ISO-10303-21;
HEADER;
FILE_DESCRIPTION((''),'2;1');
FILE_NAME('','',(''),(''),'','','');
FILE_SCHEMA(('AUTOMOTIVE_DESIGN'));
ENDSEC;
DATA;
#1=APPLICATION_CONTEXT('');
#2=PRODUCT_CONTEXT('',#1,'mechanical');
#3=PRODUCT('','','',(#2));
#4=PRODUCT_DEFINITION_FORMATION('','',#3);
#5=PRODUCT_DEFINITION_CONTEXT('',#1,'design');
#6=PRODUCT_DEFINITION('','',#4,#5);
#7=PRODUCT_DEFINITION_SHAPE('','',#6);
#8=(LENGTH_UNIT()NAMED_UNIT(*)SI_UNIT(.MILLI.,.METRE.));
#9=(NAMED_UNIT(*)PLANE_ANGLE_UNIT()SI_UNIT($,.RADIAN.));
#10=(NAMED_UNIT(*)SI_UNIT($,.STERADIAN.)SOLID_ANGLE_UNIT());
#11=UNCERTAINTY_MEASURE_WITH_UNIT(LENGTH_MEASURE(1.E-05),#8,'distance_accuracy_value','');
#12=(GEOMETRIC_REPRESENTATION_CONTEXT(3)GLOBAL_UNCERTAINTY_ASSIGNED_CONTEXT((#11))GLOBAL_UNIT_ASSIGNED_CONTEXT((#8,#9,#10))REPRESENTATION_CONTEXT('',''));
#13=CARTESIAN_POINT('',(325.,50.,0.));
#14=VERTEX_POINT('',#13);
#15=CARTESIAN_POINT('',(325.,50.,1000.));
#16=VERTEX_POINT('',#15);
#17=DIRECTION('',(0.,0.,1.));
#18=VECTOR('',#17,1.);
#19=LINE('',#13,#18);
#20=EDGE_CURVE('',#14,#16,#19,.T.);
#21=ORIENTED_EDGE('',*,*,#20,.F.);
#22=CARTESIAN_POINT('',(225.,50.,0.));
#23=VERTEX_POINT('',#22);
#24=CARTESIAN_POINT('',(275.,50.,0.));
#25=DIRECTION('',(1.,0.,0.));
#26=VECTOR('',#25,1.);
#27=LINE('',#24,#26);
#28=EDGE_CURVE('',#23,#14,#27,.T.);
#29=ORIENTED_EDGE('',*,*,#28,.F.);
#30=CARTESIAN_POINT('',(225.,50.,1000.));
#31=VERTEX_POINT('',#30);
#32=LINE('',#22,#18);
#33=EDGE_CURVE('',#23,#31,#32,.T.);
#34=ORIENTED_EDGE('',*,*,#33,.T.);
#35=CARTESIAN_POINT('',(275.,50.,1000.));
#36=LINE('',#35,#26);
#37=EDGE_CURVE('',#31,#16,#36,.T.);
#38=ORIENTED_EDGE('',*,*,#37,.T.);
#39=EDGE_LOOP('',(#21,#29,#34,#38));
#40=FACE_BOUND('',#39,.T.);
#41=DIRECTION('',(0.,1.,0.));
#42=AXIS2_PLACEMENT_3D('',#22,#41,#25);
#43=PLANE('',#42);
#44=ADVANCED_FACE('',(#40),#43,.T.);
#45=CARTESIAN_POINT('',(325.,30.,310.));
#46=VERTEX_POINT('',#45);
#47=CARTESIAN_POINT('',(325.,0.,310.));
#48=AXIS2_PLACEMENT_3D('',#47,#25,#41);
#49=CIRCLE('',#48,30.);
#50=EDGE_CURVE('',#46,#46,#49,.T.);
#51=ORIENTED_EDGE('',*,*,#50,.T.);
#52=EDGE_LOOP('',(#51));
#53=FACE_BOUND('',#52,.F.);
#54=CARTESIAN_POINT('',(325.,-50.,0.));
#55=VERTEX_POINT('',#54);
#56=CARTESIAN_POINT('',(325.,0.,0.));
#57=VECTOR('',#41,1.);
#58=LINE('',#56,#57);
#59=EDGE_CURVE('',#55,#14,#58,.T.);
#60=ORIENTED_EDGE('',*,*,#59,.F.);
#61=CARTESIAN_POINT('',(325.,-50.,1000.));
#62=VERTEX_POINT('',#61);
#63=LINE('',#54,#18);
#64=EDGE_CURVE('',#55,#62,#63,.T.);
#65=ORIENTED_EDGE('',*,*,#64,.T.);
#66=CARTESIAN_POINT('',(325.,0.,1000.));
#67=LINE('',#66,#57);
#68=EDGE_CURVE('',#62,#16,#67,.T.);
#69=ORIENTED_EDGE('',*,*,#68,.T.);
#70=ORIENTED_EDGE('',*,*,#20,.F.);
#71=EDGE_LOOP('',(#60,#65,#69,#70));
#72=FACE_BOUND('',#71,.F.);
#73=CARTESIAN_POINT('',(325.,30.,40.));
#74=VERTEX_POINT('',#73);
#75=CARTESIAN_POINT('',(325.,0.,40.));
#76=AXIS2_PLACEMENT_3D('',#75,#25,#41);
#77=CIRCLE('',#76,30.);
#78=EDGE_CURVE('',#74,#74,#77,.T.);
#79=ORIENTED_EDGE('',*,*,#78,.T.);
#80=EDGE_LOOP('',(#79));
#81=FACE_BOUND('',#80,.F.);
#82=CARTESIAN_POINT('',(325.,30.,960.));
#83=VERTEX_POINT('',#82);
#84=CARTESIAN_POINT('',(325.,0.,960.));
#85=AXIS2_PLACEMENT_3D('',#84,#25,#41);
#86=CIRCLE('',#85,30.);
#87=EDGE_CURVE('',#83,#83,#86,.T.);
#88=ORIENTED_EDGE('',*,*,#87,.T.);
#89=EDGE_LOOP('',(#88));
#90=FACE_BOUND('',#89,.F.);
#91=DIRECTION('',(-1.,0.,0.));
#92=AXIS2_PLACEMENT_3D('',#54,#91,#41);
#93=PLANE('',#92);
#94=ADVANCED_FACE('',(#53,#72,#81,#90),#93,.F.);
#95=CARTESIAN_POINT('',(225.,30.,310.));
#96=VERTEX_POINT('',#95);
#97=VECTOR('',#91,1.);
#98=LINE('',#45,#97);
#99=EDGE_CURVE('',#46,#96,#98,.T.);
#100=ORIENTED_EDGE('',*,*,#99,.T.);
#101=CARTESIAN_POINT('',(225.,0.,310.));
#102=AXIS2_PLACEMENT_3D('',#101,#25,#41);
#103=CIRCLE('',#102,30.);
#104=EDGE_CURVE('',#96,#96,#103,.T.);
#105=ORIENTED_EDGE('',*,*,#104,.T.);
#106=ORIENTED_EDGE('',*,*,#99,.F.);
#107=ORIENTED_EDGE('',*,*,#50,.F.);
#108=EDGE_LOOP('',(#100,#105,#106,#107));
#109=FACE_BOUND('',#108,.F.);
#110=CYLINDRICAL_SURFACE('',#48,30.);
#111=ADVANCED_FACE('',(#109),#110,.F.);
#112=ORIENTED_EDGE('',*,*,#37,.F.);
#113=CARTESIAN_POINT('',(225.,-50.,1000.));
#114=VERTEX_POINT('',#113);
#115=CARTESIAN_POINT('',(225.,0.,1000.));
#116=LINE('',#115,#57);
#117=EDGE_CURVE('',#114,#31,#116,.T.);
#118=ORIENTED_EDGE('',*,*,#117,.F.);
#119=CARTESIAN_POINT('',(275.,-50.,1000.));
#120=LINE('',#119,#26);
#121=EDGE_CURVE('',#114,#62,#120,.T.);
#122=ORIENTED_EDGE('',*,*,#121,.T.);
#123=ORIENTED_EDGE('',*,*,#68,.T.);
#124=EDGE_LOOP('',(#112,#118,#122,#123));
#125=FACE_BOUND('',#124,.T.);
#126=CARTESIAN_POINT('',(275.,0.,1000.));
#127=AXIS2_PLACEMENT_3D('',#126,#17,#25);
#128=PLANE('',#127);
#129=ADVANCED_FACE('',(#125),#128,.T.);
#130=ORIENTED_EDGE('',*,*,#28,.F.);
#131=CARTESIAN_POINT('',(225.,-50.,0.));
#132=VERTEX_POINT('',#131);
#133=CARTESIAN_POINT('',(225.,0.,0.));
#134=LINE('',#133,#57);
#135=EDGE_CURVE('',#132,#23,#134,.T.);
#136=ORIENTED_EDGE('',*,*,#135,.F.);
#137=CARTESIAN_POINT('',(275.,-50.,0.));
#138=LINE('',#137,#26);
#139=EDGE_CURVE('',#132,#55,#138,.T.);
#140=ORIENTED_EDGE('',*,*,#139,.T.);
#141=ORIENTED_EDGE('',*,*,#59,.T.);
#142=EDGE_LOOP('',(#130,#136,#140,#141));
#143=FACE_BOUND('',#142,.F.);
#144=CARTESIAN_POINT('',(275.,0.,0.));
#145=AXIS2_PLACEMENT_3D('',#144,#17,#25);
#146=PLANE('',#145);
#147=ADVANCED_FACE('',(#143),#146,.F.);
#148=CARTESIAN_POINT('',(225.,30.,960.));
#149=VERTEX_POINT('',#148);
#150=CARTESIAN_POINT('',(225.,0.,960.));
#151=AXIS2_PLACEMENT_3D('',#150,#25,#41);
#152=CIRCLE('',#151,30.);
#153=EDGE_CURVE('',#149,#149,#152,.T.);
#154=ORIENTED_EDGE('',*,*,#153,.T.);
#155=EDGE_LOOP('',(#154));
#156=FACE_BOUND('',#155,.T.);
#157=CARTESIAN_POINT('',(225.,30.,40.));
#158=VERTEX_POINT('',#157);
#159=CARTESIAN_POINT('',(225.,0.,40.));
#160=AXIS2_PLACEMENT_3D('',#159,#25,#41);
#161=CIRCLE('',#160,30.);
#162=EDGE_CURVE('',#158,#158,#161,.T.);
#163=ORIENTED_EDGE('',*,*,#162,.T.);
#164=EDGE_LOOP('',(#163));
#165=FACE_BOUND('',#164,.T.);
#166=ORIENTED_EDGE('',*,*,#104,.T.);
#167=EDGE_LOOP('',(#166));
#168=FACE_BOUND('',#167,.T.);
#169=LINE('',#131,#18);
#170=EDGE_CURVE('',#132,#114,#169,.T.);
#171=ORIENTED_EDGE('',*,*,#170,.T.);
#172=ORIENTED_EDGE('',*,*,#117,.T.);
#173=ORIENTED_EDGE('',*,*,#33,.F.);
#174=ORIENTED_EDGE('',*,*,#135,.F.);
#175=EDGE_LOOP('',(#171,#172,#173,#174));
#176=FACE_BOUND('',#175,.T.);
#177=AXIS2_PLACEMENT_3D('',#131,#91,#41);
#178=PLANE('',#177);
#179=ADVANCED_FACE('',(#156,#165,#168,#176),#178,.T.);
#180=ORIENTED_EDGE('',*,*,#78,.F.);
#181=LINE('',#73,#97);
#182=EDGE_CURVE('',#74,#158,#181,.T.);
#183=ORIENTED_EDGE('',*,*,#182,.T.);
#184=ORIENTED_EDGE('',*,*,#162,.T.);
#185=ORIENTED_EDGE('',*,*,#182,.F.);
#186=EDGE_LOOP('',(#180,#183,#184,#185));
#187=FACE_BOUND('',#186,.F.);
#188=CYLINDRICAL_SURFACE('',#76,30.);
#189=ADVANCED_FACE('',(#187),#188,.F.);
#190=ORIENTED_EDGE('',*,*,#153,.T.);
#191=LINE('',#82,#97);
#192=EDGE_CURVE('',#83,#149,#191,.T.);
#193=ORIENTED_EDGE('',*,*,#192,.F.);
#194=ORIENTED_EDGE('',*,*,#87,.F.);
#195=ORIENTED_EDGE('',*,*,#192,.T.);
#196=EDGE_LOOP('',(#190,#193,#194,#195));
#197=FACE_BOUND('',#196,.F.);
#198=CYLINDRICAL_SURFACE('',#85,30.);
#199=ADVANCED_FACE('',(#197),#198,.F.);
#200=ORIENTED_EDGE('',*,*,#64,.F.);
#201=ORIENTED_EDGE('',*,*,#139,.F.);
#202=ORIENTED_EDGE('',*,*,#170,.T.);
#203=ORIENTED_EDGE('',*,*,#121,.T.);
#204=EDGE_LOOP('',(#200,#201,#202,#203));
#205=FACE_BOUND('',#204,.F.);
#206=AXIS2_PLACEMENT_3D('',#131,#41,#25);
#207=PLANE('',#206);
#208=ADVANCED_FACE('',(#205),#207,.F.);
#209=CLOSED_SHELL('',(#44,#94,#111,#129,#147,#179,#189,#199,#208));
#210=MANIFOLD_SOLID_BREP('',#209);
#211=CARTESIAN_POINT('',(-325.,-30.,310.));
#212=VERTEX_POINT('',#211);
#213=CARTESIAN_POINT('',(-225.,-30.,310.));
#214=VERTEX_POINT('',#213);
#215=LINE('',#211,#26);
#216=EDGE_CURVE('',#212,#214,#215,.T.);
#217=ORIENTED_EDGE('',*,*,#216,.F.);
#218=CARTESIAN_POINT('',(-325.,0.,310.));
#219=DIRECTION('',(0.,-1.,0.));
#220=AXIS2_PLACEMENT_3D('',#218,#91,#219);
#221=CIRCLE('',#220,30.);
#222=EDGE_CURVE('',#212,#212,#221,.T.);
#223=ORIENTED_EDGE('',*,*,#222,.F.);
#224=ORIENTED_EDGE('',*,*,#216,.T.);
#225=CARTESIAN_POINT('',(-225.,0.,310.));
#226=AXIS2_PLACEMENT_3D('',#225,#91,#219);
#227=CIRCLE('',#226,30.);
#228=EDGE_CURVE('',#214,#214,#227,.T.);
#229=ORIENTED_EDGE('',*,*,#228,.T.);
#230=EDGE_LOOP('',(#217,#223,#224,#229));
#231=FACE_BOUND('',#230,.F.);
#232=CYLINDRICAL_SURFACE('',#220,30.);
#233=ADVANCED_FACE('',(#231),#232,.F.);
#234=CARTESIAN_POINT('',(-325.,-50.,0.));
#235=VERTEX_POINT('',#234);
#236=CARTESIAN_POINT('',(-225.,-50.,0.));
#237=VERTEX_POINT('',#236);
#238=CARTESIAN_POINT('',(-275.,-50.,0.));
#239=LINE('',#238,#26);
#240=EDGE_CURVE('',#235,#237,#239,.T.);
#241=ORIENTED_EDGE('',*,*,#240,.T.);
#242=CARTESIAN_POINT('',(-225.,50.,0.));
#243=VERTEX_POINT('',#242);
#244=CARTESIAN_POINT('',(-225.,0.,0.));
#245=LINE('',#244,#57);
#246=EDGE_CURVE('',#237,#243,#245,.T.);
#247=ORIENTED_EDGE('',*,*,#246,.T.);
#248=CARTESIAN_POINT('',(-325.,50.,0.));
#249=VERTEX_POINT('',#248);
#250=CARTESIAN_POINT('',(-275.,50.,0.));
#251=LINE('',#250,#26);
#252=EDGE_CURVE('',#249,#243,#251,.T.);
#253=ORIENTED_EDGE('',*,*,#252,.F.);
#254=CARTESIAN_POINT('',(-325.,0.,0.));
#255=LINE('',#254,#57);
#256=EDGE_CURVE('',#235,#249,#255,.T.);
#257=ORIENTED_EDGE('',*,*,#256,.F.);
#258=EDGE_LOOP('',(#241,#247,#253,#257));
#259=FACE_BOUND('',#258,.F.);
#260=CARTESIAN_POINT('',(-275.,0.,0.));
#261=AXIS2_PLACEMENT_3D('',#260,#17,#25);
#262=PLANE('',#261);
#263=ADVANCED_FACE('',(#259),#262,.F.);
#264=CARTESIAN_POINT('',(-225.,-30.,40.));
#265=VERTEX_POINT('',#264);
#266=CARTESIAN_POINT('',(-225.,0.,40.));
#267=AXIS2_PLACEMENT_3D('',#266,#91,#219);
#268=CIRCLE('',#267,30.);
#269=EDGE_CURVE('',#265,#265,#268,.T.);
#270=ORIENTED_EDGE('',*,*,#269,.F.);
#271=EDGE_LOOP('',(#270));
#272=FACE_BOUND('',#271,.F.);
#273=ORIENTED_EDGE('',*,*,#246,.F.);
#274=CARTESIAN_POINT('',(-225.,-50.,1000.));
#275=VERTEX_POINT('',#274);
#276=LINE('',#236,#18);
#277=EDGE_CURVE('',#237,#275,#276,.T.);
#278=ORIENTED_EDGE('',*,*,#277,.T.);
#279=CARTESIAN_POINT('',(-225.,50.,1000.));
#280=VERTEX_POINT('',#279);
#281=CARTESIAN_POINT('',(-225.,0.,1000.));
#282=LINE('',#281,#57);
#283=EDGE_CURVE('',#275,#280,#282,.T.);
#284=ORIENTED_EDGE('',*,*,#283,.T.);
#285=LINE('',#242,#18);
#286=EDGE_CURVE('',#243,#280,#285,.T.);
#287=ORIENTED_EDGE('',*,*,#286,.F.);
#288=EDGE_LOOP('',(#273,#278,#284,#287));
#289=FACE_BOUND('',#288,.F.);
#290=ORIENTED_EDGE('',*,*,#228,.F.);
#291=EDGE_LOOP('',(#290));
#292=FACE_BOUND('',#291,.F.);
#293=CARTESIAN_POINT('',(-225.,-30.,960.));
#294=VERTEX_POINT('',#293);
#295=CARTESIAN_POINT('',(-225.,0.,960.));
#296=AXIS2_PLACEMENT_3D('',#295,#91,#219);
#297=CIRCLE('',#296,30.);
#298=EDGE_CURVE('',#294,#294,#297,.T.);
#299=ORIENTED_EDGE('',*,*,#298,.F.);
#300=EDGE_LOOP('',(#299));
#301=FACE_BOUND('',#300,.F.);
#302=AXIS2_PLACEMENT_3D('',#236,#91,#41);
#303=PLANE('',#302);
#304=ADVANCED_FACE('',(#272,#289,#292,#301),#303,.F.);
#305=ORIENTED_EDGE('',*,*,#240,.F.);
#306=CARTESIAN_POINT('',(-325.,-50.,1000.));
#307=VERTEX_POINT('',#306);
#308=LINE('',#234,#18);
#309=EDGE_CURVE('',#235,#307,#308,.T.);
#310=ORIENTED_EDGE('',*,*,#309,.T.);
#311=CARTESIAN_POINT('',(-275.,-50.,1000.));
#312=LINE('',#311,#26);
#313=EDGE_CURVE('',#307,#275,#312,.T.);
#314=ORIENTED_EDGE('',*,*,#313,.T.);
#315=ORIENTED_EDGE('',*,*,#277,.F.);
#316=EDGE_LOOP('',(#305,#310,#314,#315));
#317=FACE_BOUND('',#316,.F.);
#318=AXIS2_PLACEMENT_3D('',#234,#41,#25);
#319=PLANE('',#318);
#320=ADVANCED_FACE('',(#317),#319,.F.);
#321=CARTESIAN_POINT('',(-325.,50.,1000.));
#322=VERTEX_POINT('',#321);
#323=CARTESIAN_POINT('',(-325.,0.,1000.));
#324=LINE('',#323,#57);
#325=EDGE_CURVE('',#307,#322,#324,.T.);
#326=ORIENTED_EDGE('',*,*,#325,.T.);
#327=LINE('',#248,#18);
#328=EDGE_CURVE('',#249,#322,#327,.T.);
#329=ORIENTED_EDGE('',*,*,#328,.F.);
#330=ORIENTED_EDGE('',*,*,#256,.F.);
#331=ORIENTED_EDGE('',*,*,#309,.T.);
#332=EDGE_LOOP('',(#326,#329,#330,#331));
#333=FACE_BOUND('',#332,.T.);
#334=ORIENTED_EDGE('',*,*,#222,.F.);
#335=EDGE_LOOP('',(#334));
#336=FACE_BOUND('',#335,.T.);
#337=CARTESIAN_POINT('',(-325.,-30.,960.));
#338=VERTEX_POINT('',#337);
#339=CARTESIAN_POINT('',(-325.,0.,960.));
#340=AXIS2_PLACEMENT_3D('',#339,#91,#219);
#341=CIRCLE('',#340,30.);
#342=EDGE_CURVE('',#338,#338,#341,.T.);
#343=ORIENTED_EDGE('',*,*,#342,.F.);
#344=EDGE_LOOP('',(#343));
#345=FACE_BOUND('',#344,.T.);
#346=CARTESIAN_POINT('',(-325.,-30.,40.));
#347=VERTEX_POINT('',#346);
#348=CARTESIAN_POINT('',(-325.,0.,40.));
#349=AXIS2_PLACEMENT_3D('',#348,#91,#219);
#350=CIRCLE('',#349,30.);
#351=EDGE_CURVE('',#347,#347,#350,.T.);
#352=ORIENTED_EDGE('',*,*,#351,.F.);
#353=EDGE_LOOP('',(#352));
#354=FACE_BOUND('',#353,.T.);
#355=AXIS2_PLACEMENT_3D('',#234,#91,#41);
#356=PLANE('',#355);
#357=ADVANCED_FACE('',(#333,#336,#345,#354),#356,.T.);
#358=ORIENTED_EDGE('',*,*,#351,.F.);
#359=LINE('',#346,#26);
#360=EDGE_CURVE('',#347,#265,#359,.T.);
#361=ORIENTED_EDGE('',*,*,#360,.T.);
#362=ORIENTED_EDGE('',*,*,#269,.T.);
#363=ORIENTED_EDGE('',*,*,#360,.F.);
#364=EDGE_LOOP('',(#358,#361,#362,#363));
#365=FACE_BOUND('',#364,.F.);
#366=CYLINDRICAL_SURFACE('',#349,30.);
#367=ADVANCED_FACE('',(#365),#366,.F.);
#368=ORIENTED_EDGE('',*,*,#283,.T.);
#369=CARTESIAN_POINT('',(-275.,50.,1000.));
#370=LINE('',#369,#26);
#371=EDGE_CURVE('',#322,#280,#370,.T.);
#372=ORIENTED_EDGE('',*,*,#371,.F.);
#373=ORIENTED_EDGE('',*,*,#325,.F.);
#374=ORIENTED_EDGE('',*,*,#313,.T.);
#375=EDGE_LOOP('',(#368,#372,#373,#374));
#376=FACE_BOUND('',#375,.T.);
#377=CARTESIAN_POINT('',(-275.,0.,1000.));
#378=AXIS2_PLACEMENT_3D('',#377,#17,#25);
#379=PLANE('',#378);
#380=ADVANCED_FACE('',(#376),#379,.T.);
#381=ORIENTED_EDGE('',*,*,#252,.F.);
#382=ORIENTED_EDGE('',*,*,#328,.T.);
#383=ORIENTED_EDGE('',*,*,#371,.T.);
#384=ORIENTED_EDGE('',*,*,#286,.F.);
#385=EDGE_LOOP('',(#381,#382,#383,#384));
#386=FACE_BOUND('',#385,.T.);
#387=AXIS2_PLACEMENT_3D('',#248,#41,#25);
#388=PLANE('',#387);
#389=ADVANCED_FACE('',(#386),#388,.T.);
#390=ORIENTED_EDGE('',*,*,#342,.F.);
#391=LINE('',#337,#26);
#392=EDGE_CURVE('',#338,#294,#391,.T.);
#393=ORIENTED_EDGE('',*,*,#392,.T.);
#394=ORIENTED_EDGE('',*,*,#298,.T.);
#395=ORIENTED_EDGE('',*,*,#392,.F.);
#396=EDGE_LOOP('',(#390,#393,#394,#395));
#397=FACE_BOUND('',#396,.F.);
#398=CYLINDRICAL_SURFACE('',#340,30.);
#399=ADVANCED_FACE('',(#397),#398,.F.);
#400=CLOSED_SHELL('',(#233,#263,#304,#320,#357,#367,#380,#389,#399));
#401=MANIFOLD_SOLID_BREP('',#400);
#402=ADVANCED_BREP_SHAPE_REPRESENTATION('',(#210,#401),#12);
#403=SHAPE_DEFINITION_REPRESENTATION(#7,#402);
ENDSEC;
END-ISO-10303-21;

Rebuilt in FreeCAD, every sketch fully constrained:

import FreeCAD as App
import Part
import Sketcher

doc = App.newDocument("Part")
body = doc.addObject("PartDesign::Body", "Body")
body.AllowCompound = True

sketch1 = doc.addObject("Sketcher::SketchObject", "Sketch")
body.addObject(sketch1)
sketch1.AttachmentSupport = (doc.XY_Plane, [""])
sketch1.MapMode = "FlatFace"
sketch1.addGeometry([
    Part.LineSegment(App.Vector(-325, 50, 0), App.Vector(-325, -50, 0)),
    Part.LineSegment(App.Vector(-325, -50, 0), App.Vector(-225, -50, 0)),
    Part.LineSegment(App.Vector(-225, -50, 0), App.Vector(-225, 50, 0)),
    Part.LineSegment(App.Vector(-225, 50, 0), App.Vector(-325, 50, 0)),
    Part.LineSegment(App.Vector(225, 50, 0), App.Vector(225, -50, 0)),
    Part.LineSegment(App.Vector(225, -50, 0), App.Vector(325, -50, 0)),
    Part.LineSegment(App.Vector(325, -50, 0), App.Vector(325, 50, 0)),
    Part.LineSegment(App.Vector(325, 50, 0), App.Vector(225, 50, 0)),
], False)
sketch1.addConstraint([
    Sketcher.Constraint("Coincident", 0, 2, 1, 1),
    Sketcher.Constraint("Coincident", 1, 2, 2, 1),
    Sketcher.Constraint("Coincident", 2, 2, 3, 1),
    Sketcher.Constraint("Coincident", 3, 2, 0, 1),
    Sketcher.Constraint("Coincident", 4, 2, 5, 1),
    Sketcher.Constraint("Coincident", 5, 2, 6, 1),
    Sketcher.Constraint("Coincident", 6, 2, 7, 1),
    Sketcher.Constraint("Coincident", 7, 2, 4, 1),
    Sketcher.Constraint("Vertical", 0),
    Sketcher.Constraint("Horizontal", 1),
    Sketcher.Constraint("Vertical", 2),
    Sketcher.Constraint("Horizontal", 3),
    Sketcher.Constraint("Vertical", 4),
    Sketcher.Constraint("Horizontal", 5),
    Sketcher.Constraint("Vertical", 6),
    Sketcher.Constraint("Horizontal", 7),
    Sketcher.Constraint("Symmetric", 2, 2, 4, 2, -1, 1),
    Sketcher.Constraint("Symmetric", 0, 2, 6, 2, -1, 1),
    Sketcher.Constraint("Horizontal", 1, 2, 4, 2),
    Sketcher.Constraint("Equal", 7, 0),
    Sketcher.Constraint("DistanceX", 1, 1, 1, 2, 100.0),
    Sketcher.Constraint("DistanceX", 0, 2, -1, 1, 325.0),
])
pad1 = doc.addObject("PartDesign::Pad", "Pad")
body.addObject(pad1)
pad1.Profile = sketch1
pad1.Length = 1000

sketch2 = doc.addObject("Sketcher::SketchObject", "Sketch001")
body.addObject(sketch2)
sketch2.AttachmentSupport = (doc.YZ_Plane, [""])
sketch2.MapMode = "FlatFace"
sketch2.AttachmentOffset = App.Placement(App.Vector(0, 0, -325), App.Rotation())
sketch2.addGeometry(Part.Circle(App.Vector(0, 960, 0), App.Vector(0, 0, 1), 30), False)
sketch2.addConstraint([
    Sketcher.Constraint("PointOnObject", 0, 3, -2),
    Sketcher.Constraint("Diameter", 0, 60.0),
    Sketcher.Constraint("DistanceY", -1, 1, 0, 3, 960.0),
])
pocket1 = doc.addObject("PartDesign::Pocket", "Pocket")
body.addObject(pocket1)
pocket1.Profile = sketch2
pocket1.Length = 100
pocket1.Reversed = True

sketch3 = doc.addObject("Sketcher::SketchObject", "Sketch002")
body.addObject(sketch3)
sketch3.AttachmentSupport = (doc.YZ_Plane, [""])
sketch3.MapMode = "FlatFace"
sketch3.AttachmentOffset = App.Placement(App.Vector(0, 0, 325), App.Rotation())
sketch3.addGeometry(Part.Circle(App.Vector(0, 40, 0), App.Vector(0, 0, 1), 30), False)
sketch3.addConstraint([
    Sketcher.Constraint("PointOnObject", 0, 3, -2),
    Sketcher.Constraint("Diameter", 0, 60.0),
    Sketcher.Constraint("DistanceY", -1, 1, 0, 3, 40.0),
])
pocket2 = doc.addObject("PartDesign::Pocket", "Pocket001")
body.addObject(pocket2)
pocket2.Profile = sketch3
pocket2.Length = 100

sketch4 = doc.addObject("Sketcher::SketchObject", "Sketch003")
body.addObject(sketch4)
sketch4.AttachmentSupport = (doc.YZ_Plane, [""])
sketch4.MapMode = "FlatFace"
sketch4.AttachmentOffset = App.Placement(App.Vector(0, 0, 325), App.Rotation())
sketch4.addGeometry(Part.Circle(App.Vector(0, 960, 0), App.Vector(0, 0, 1), 30), False)
sketch4.addConstraint([
    Sketcher.Constraint("PointOnObject", 0, 3, -2),
    Sketcher.Constraint("Diameter", 0, 60.0),
    Sketcher.Constraint("DistanceY", -1, 1, 0, 3, 960.0),
])
pocket3 = doc.addObject("PartDesign::Pocket", "Pocket002")
body.addObject(pocket3)
pocket3.Profile = sketch4
pocket3.Length = 100

sketch5 = doc.addObject("Sketcher::SketchObject", "Sketch004")
body.addObject(sketch5)
sketch5.AttachmentSupport = (doc.YZ_Plane, [""])
sketch5.MapMode = "FlatFace"
sketch5.AttachmentOffset = App.Placement(App.Vector(0, 0, -325), App.Rotation())
sketch5.addGeometry(Part.Circle(App.Vector(0, 40, 0), App.Vector(0, 0, 1), 30), False)
sketch5.addConstraint([
    Sketcher.Constraint("PointOnObject", 0, 3, -2),
    Sketcher.Constraint("Diameter", 0, 60.0),
    Sketcher.Constraint("DistanceY", -1, 1, 0, 3, 40.0),
])
pocket4 = doc.addObject("PartDesign::Pocket", "Pocket003")
body.addObject(pocket4)
pocket4.Profile = sketch5
pocket4.Length = 100
pocket4.Reversed = True

sketch6 = doc.addObject("Sketcher::SketchObject", "Sketch005")
body.addObject(sketch6)
sketch6.AttachmentSupport = (doc.YZ_Plane, [""])
sketch6.MapMode = "FlatFace"
sketch6.AttachmentOffset = App.Placement(App.Vector(0, 0, 325), App.Rotation())
sketch6.addGeometry(Part.Circle(App.Vector(0, 310, 0), App.Vector(0, 0, 1), 30), False)
sketch6.addConstraint([
    Sketcher.Constraint("PointOnObject", 0, 3, -2),
    Sketcher.Constraint("Diameter", 0, 60.0),
    Sketcher.Constraint("DistanceY", -1, 1, 0, 3, 310.0),
])
pocket5 = doc.addObject("PartDesign::Pocket", "Pocket004")
body.addObject(pocket5)
pocket5.Profile = sketch6
pocket5.Length = 100

sketch7 = doc.addObject("Sketcher::SketchObject", "Sketch006")
body.addObject(sketch7)
sketch7.AttachmentSupport = (doc.YZ_Plane, [""])
sketch7.MapMode = "FlatFace"
sketch7.AttachmentOffset = App.Placement(App.Vector(0, 0, -325), App.Rotation())
sketch7.addGeometry(Part.Circle(App.Vector(0, 310, 0), App.Vector(0, 0, 1), 30), False)
sketch7.addConstraint([
    Sketcher.Constraint("PointOnObject", 0, 3, -2),
    Sketcher.Constraint("Diameter", 0, 60.0),
    Sketcher.Constraint("DistanceY", -1, 1, 0, 3, 310.0),
])
pocket6 = doc.addObject("PartDesign::Pocket", "Pocket005")
body.addObject(pocket6)
pocket6.Profile = sketch7
pocket6.Length = 100
pocket6.Reversed = True

doc.recompute()
